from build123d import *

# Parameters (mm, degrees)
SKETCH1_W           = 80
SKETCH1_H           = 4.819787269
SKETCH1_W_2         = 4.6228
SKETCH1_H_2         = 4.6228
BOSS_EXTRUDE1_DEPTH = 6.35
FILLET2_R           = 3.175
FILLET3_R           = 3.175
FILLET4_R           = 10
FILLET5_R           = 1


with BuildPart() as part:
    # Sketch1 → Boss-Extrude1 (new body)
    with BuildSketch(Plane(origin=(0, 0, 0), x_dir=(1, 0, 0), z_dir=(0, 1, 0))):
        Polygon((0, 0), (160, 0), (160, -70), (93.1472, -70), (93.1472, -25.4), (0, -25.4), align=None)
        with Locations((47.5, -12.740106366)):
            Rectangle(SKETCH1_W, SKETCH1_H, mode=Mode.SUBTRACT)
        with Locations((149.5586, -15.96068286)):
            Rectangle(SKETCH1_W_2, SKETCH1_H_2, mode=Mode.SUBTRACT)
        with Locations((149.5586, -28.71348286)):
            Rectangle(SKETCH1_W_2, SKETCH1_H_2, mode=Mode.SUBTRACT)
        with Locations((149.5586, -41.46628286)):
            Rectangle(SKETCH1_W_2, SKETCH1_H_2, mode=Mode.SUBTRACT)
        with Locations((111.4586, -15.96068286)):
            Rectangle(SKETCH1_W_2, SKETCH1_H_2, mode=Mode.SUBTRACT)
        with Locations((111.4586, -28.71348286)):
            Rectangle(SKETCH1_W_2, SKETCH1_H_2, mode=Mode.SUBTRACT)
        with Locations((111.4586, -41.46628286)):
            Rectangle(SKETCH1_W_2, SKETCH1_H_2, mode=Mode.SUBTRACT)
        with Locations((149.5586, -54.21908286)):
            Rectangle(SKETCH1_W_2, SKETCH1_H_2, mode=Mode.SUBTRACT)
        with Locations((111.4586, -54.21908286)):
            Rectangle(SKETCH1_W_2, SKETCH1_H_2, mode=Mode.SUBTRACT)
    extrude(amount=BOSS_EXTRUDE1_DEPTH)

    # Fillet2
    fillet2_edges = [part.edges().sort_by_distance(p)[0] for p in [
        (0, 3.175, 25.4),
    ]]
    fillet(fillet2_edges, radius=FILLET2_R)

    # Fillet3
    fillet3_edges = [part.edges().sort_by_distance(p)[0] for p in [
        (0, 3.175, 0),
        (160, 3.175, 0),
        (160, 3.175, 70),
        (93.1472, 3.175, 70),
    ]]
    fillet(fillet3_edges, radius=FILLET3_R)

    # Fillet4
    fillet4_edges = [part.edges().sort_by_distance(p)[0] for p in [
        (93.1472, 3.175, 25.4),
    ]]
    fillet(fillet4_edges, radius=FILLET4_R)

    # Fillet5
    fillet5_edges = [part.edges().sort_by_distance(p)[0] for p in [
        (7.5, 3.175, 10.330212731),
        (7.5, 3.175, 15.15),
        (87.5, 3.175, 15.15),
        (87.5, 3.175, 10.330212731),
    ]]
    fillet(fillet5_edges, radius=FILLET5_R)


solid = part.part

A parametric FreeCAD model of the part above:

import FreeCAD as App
import Part
import Sketcher
Q = App.Units.Quantity


def edges_at(feature, points):
    """Names of the edges that pass closest to the given points."""
    edges = feature.Shape.Edges
    near = lambda p: min(range(len(edges)), key=lambda i: edges[i].distToShape(Part.Vertex(*p))[0])
    return sorted({f"Edge{near(p) + 1}" for p in points})


def add_polygon(sketch, points):
    """Adds a closed chain of lines whose ends are joined by coincident constraints."""
    first, n = sketch.GeometryCount, len(points)
    for a, b in zip(points, points[1:] + points[:1]):
        sketch.addGeometry(Part.LineSegment(App.Vector(*a, 0), App.Vector(*b, 0)), False)
    for i in range(n):
        sketch.addConstraint(Sketcher.Constraint("Coincident", first + i, 2, first + (i + 1) % n, 1))

doc = App.newDocument("Part")
body = doc.addObject("PartDesign::Body", "Body")

sketch1 = doc.addObject("Sketcher::SketchObject", "Sketch")
body.addObject(sketch1)
sketch1.AttachmentSupport = (doc.XZ_Plane, [""])
sketch1.MapMode = "FlatFace"
add_polygon(sketch1, [(160, 0), (0, 0), (0, 25.4), (93.1472, 25.4), (93.1472, 70), (160, 70)])
add_polygon(sketch1, [(147.2472, 56.530483), (147.2472, 51.907683), (151.87, 51.907683), (151.87, 56.530483)])
add_polygon(sketch1, [(109.1472, 56.530483), (109.1472, 51.907683), (113.77, 51.907683), (113.77, 56.530483)])
add_polygon(sketch1, [(147.2472, 43.777683), (147.2472, 39.154883), (151.87, 39.154883), (151.87, 43.777683)])
add_polygon(sketch1, [(109.1472, 43.777683), (109.1472, 39.154883), (113.77, 39.154883), (113.77, 43.777683)])
add_polygon(sketch1, [(147.2472, 31.024883), (147.2472, 26.402083), (151.87, 26.402083), (151.87, 31.024883)])
add_polygon(sketch1, [(109.1472, 31.024883), (109.1472, 26.402083), (113.77, 26.402083), (113.77, 31.024883)])
add_polygon(sketch1, [(147.2472, 18.272083), (147.2472, 13.649283), (151.87, 13.649283), (151.87, 18.272083)])
add_polygon(sketch1, [(109.1472, 18.272083), (109.1472, 13.649283), (113.77, 13.649283), (113.77, 18.272083)])
add_polygon(sketch1, [(7.5, 15.15), (7.5, 10.330213), (87.5, 10.330213), (87.5, 15.15)])
sketch1.addConstraint(Sketcher.Constraint("Horizontal", 0))
sketch1.addConstraint(Sketcher.Constraint("Vertical", 1))
sketch1.addConstraint(Sketcher.Constraint("Horizontal", 2))
sketch1.addConstraint(Sketcher.Constraint("Vertical", 3))
sketch1.addConstraint(Sketcher.Constraint("Horizontal", 4))
sketch1.addConstraint(Sketcher.Constraint("Vertical", 5))
sketch1.addConstraint(Sketcher.Constraint("Vertical", 6))
sketch1.addConstraint(Sketcher.Constraint("Horizontal", 7))
sketch1.addConstraint(Sketcher.Constraint("Vertical", 8))
sketch1.addConstraint(Sketcher.Constraint("Horizontal", 9))
sketch1.addConstraint(Sketcher.Constraint("Vertical", 10))
sketch1.addConstraint(Sketcher.Constraint("Horizontal", 11))
sketch1.addConstraint(Sketcher.Constraint("Vertical", 12))
sketch1.addConstraint(Sketcher.Constraint("Horizontal", 13))
sketch1.addConstraint(Sketcher.Constraint("Vertical", 14))
sketch1.addConstraint(Sketcher.Constraint("Horizontal", 15))
sketch1.addConstraint(Sketcher.Constraint("Vertical", 16))
sketch1.addConstraint(Sketcher.Constraint("Horizontal", 17))
sketch1.addConstraint(Sketcher.Constraint("Vertical", 18))
sketch1.addConstraint(Sketcher.Constraint("Horizontal", 19))
sketch1.addConstraint(Sketcher.Constraint("Vertical", 20))
sketch1.addConstraint(Sketcher.Constraint("Horizontal", 21))
sketch1.addConstraint(Sketcher.Constraint("Vertical", 22))
sketch1.addConstraint(Sketcher.Constraint("Horizontal", 23))
sketch1.addConstraint(Sketcher.Constraint("Vertical", 24))
sketch1.addConstraint(Sketcher.Constraint("Horizontal", 25))
sketch1.addConstraint(Sketcher.Constraint("Vertical", 26))
sketch1.addConstraint(Sketcher.Constraint("Horizontal", 27))
sketch1.addConstraint(Sketcher.Constraint("Vertical", 28))
sketch1.addConstraint(Sketcher.Constraint("Horizontal", 29))
sketch1.addConstraint(Sketcher.Constraint("Vertical", 30))
sketch1.addConstraint(Sketcher.Constraint("Horizontal", 31))
sketch1.addConstraint(Sketcher.Constraint("Vertical", 32))
sketch1.addConstraint(Sketcher.Constraint("Horizontal", 33))
sketch1.addConstraint(Sketcher.Constraint("Vertical", 34))
sketch1.addConstraint(Sketcher.Constraint("Horizontal", 35))
sketch1.addConstraint(Sketcher.Constraint("Vertical", 36))
sketch1.addConstraint(Sketcher.Constraint("Horizontal", 37))
sketch1.addConstraint(Sketcher.Constraint("Vertical", 38))
sketch1.addConstraint(Sketcher.Constraint("Horizontal", 39))
sketch1.addConstraint(Sketcher.Constraint("Vertical", 40))
sketch1.addConstraint(Sketcher.Constraint("Horizontal", 41))
sketch1.addConstraint(Sketcher.Constraint("Coincident", 0, 2, -1, 1))
sketch1.addConstraint(Sketcher.Constraint("Horizontal", 7, 2, 10, 2))
sketch1.addConstraint(Sketcher.Constraint("Horizontal", 9, 2, 12, 2))
sketch1.addConstraint(Sketcher.Constraint("Horizontal", 15, 2, 18, 2))
sketch1.addConstraint(Sketcher.Constraint("Horizontal", 17, 2, 20, 2))
sketch1.addConstraint(Sketcher.Constraint("Horizontal", 23, 2, 26, 2))
sketch1.addConstraint(Sketcher.Constraint("Horizontal", 25, 2, 28, 2))
sketch1.addConstraint(Sketcher.Constraint("Horizontal", 31, 2, 34, 2))
sketch1.addConstraint(Sketcher.Constraint("Horizontal", 33, 2, 36, 2))
sketch1.addConstraint(Sketcher.Constraint("Vertical", 9, 2, 14, 2))
sketch1.addConstraint(Sketcher.Constraint("Vertical", 8, 2, 15, 2))
sketch1.addConstraint(Sketcher.Constraint("Vertical", 13, 2, 18, 2))
sketch1.addConstraint(Sketcher.Constraint("Vertical", 12, 2, 19, 2))
sketch1.addConstraint(Sketcher.Constraint("Vertical", 17, 2, 22, 2))
sketch1.addConstraint(Sketcher.Constraint("Vertical", 16, 2, 23, 2))
sketch1.addConstraint(Sketcher.Constraint("Vertical", 21, 2, 26, 2))
sketch1.addConstraint(Sketcher.Constraint("Vertical", 20, 2, 27, 2))
sketch1.addConstraint(Sketcher.Constraint("Vertical", 25, 2, 30, 2))
sketch1.addConstraint(Sketcher.Constraint("Vertical", 24, 2, 31, 2))
sketch1.addConstraint(Sketcher.Constraint("Vertical", 29, 2, 34, 2))
sketch1.addConstraint(Sketcher.Constraint("Vertical", 28, 2, 35, 2))
sketch1.addConstraint(Sketcher.Constraint("Equal", 9, 11))
sketch1.addConstraint(Sketcher.Constraint("Equal", 37, 6))
sketch1.addConstraint(Sketcher.Constraint("Equal", 12, 14))
sketch1.addConstraint(Sketcher.Constraint("Equal", 20, 22))
sketch1.addConstraint(Sketcher.Constraint("Equal", 28, 30))
sketch1.addConstraint(Sketcher.Constraint("DistanceX", 0, 2, 0, 1, Q("160 mm")))
sketch1.addConstraint(Sketcher.Constraint("DistanceX", 39, 1, 39, 2, Q("80 mm")))
sketch1.addConstraint(Sketcher.Constraint("DistanceY", 5, 2, 5, 1, Q("70 mm")))
sketch1.addConstraint(Sketcher.Constraint("DistanceY", 1, 1, 1, 2, Q("25.4 mm")))
sketch1.addConstraint(Sketcher.Constraint("DistanceX", 3, 2, 10, 2, Q("16 mm")))
sketch1.addConstraint(Sketcher.Constraint("DistanceX", -1, 1, 38, 2, Q("7.5 mm")))
sketch1.addConstraint(Sketcher.Constraint("DistanceX", 3, 2, 6, 2, Q("54.1 mm")))
sketch1.addConstraint(Sketcher.Constraint("DistanceX", -1, 1, 7, 2, Q("151.87 mm")))
sketch1.addConstraint(Sketcher.Constraint("DistanceY", -1, 1, 40, 2, Q("15.15 mm")))
sketch1.addConstraint(Sketcher.Constraint("DistanceY", 16, 2, 7, 2, Q("8.13 mm")))
sketch1.addConstraint(Sketcher.Constraint("DistanceY", 24, 2, 15, 2, Q("8.13 mm")))
sketch1.addConstraint(Sketcher.Constraint("DistanceY", 32, 2, 23, 2, Q("8.13 mm")))
sketch1.addConstraint(Sketcher.Constraint("DistanceX", 2, 1, 2, 2, Q("93.1472 mm")))
sketch1.addConstraint(Sketcher.Constraint("DistanceY", 38, 2, 38, 1, Q("4.819787 mm")))
sketch1.addConstraint(Sketcher.Constraint("DistanceY", 38, 2, 34, 2, Q("3.31907 mm")))
pad1 = doc.addObject("PartDesign::Pad", "Pad")
body.addObject(pad1)
pad1.Profile = sketch1
pad1.Length = 6.35
pad1.Reversed = True
doc.recompute()

fillet = doc.addObject("PartDesign::Fillet", "Fillet")
body.addObject(fillet)
fillet.Base = (pad1, edges_at(pad1, [(0, 3.175, 25.4)]))
fillet.Radius = 3.175
doc.recompute()

fillet2 = doc.addObject("PartDesign::Fillet", "Fillet001")
body.addObject(fillet2)
fillet2.Base = (fillet, edges_at(fillet, [
    (0, 3.175, 0),
    (160, 3.175, 0),
    (160, 3.175, 70),
    (93.147, 3.175, 70),
]))
fillet2.Radius = 3.175
doc.recompute()

fillet3 = doc.addObject("PartDesign::Fillet", "Fillet002")
body.addObject(fillet3)
fillet3.Base = (fillet2, edges_at(fillet2, [(93.147, 3.175, 25.4)]))
fillet3.Radius = 10
doc.recompute()

fillet4 = doc.addObject("PartDesign::Fillet", "Fillet003")
body.addObject(fillet4)
fillet4.Base = (fillet3, edges_at(fillet3, [
    (7.5, 3.175, 10.33),
    (7.5, 3.175, 15.15),
    (87.5, 3.175, 15.15),
    (87.5, 3.175, 10.33),
]))
fillet4.Radius = 1

doc.recompute()
